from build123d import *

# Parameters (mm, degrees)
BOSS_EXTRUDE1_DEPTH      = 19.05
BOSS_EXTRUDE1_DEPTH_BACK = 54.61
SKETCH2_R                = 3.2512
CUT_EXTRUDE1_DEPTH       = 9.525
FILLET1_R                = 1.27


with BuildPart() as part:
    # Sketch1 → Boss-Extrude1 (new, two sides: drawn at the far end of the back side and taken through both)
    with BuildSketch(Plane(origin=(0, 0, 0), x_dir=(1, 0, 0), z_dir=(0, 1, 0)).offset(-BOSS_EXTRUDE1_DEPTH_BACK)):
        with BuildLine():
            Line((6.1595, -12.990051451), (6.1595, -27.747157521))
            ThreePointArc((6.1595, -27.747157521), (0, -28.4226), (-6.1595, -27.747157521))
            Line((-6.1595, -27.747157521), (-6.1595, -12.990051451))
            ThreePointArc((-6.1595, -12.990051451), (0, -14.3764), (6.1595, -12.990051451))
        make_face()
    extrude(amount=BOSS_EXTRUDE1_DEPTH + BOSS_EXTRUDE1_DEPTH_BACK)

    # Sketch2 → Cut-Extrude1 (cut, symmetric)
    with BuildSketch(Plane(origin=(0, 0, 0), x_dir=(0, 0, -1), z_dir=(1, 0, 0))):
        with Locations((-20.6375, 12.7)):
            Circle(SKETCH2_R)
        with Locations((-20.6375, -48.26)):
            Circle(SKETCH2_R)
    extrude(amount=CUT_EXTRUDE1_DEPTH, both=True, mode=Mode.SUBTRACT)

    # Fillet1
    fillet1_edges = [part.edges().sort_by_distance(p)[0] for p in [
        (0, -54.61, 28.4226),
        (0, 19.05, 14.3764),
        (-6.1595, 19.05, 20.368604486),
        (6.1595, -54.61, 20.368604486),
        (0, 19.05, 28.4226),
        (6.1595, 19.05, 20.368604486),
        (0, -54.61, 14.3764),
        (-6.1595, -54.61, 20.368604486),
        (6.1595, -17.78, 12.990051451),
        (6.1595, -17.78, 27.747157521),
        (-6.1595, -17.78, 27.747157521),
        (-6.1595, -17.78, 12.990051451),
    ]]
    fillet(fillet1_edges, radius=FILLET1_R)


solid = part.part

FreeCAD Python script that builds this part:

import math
import FreeCAD as App
import Part
import Sketcher
Q = App.Units.Quantity


def edges_at(feature, points):
    """Names of the edges that pass closest to the given points."""
    edges = feature.Shape.Edges
    near = lambda p: min(range(len(edges)), key=lambda i: edges[i].distToShape(Part.Vertex(*p))[0])
    return sorted({f"Edge{near(p) + 1}" for p in points})

doc = App.newDocument("Part")
body = doc.addObject("PartDesign::Body", "Body")

# Sketch on XZ plane
sketch1 = body.newObject("Sketcher::SketchObject", "Sketch")
sketch1.AttachmentSupport = (doc.getObject("XZ_Plane"), [""])
sketch1.MapMode = "FlatFace"
sketch1.addGeometry([
    Part.LineSegment(App.Vector(6, 28, 0), App.Vector(6, 13, 0)),
    Part.ArcOfCircle(Part.Circle(App.Vector(0, 0, 0), App.Vector(0, 0, 1), 14), math.radians(65), math.radians(115)),
    Part.LineSegment(App.Vector(-6, 13, 0), App.Vector(-6, 28, 0)),
    Part.ArcOfCircle(Part.Circle(App.Vector(0, 0, 0), App.Vector(0, 0, 1), 28), math.radians(77), math.radians(103)),
], False)
sketch1.addConstraint([
    Sketcher.Constraint("Coincident", 0, 2, 1, 1),
    Sketcher.Constraint("Coincident", 1, 2, 2, 1),
    Sketcher.Constraint("Coincident", 2, 2, 3, 2),
    Sketcher.Constraint("Coincident", 3, 1, 0, 1),
    Sketcher.Constraint("Vertical", 0),
    Sketcher.Constraint("Vertical", 2),
    Sketcher.Constraint("Coincident", 1, 3, -1, 1),
    Sketcher.Constraint("Coincident", 3, 3, -1, 1),
    Sketcher.Constraint("Horizontal", 0, 2, 1, 2),
    Sketcher.Constraint("Radius", 1, Q("0.566 in")),
    Sketcher.Constraint("Radius", 3, Q("1.119 in")),
    Sketcher.Constraint("DistanceX", 1, 2, 0, 2, Q("0.485 in")),
])
pad1 = body.newObject("PartDesign::Pad", "Pad")
pad1.Profile = sketch1
pad1.Type = "TwoLengths"
pad1.Length = Q("0.75 in")
pad1.Length2 = Q("2.15 in")
pad1.Reversed = True

# Sketch on YZ plane
sketch2 = body.newObject("Sketcher::SketchObject", "Sketch001")
sketch2.AttachmentSupport = (doc.getObject("YZ_Plane"), [""])
sketch2.MapMode = "FlatFace"
sketch2.addGeometry([
    Part.Circle(App.Vector(12.7, 20.6, 0), App.Vector(0, 0, 1), 3.3),
    Part.Circle(App.Vector(-48.3, 20.6, 0), App.Vector(0, 0, 1), 3.3),
], False)
sketch2.addConstraint([
    Sketcher.Constraint("Equal", 0, 1),
    Sketcher.Constraint("Horizontal", 0, 3, 1, 3),
    Sketcher.Constraint("Diameter", 0, Q("0.256 in")),
    Sketcher.Constraint("DistanceX", -1, 1, 0, 3, Q("0.5 in")),
    Sketcher.Constraint("DistanceX", 1, 3, -1, 1, Q("1.9 in")),
    Sketcher.Constraint("DistanceY", -1, 1, 0, 3, Q("0.8125 in")),
])
pocket1 = body.newObject("PartDesign::Pocket", "Pocket")
pocket1.Profile = sketch2
pocket1.Length = Q("0.75 in")
pocket1.Midplane = True
doc.recompute()

fillet = body.newObject("PartDesign::Fillet", "Fillet")
fillet.Base = (pocket1, edges_at(pocket1, [
    (0, -54.61, 28.423),
    (0, 19.05, 14.376),
    (-6.16, 19.05, 20.369),
    (6.16, -54.61, 20.369),
    (0, 19.05, 28.423),
    (6.16, 19.05, 20.369),
    (0, -54.61, 14.376),
    (-6.16, -54.61, 20.369),
    (6.16, -17.78, 12.99),
    (6.16, -17.78, 27.747),
    (-6.16, -17.78, 27.747),
    (-6.16, -17.78, 12.99),
]))
fillet.Radius = Q("0.05 in")

doc.recompute()
